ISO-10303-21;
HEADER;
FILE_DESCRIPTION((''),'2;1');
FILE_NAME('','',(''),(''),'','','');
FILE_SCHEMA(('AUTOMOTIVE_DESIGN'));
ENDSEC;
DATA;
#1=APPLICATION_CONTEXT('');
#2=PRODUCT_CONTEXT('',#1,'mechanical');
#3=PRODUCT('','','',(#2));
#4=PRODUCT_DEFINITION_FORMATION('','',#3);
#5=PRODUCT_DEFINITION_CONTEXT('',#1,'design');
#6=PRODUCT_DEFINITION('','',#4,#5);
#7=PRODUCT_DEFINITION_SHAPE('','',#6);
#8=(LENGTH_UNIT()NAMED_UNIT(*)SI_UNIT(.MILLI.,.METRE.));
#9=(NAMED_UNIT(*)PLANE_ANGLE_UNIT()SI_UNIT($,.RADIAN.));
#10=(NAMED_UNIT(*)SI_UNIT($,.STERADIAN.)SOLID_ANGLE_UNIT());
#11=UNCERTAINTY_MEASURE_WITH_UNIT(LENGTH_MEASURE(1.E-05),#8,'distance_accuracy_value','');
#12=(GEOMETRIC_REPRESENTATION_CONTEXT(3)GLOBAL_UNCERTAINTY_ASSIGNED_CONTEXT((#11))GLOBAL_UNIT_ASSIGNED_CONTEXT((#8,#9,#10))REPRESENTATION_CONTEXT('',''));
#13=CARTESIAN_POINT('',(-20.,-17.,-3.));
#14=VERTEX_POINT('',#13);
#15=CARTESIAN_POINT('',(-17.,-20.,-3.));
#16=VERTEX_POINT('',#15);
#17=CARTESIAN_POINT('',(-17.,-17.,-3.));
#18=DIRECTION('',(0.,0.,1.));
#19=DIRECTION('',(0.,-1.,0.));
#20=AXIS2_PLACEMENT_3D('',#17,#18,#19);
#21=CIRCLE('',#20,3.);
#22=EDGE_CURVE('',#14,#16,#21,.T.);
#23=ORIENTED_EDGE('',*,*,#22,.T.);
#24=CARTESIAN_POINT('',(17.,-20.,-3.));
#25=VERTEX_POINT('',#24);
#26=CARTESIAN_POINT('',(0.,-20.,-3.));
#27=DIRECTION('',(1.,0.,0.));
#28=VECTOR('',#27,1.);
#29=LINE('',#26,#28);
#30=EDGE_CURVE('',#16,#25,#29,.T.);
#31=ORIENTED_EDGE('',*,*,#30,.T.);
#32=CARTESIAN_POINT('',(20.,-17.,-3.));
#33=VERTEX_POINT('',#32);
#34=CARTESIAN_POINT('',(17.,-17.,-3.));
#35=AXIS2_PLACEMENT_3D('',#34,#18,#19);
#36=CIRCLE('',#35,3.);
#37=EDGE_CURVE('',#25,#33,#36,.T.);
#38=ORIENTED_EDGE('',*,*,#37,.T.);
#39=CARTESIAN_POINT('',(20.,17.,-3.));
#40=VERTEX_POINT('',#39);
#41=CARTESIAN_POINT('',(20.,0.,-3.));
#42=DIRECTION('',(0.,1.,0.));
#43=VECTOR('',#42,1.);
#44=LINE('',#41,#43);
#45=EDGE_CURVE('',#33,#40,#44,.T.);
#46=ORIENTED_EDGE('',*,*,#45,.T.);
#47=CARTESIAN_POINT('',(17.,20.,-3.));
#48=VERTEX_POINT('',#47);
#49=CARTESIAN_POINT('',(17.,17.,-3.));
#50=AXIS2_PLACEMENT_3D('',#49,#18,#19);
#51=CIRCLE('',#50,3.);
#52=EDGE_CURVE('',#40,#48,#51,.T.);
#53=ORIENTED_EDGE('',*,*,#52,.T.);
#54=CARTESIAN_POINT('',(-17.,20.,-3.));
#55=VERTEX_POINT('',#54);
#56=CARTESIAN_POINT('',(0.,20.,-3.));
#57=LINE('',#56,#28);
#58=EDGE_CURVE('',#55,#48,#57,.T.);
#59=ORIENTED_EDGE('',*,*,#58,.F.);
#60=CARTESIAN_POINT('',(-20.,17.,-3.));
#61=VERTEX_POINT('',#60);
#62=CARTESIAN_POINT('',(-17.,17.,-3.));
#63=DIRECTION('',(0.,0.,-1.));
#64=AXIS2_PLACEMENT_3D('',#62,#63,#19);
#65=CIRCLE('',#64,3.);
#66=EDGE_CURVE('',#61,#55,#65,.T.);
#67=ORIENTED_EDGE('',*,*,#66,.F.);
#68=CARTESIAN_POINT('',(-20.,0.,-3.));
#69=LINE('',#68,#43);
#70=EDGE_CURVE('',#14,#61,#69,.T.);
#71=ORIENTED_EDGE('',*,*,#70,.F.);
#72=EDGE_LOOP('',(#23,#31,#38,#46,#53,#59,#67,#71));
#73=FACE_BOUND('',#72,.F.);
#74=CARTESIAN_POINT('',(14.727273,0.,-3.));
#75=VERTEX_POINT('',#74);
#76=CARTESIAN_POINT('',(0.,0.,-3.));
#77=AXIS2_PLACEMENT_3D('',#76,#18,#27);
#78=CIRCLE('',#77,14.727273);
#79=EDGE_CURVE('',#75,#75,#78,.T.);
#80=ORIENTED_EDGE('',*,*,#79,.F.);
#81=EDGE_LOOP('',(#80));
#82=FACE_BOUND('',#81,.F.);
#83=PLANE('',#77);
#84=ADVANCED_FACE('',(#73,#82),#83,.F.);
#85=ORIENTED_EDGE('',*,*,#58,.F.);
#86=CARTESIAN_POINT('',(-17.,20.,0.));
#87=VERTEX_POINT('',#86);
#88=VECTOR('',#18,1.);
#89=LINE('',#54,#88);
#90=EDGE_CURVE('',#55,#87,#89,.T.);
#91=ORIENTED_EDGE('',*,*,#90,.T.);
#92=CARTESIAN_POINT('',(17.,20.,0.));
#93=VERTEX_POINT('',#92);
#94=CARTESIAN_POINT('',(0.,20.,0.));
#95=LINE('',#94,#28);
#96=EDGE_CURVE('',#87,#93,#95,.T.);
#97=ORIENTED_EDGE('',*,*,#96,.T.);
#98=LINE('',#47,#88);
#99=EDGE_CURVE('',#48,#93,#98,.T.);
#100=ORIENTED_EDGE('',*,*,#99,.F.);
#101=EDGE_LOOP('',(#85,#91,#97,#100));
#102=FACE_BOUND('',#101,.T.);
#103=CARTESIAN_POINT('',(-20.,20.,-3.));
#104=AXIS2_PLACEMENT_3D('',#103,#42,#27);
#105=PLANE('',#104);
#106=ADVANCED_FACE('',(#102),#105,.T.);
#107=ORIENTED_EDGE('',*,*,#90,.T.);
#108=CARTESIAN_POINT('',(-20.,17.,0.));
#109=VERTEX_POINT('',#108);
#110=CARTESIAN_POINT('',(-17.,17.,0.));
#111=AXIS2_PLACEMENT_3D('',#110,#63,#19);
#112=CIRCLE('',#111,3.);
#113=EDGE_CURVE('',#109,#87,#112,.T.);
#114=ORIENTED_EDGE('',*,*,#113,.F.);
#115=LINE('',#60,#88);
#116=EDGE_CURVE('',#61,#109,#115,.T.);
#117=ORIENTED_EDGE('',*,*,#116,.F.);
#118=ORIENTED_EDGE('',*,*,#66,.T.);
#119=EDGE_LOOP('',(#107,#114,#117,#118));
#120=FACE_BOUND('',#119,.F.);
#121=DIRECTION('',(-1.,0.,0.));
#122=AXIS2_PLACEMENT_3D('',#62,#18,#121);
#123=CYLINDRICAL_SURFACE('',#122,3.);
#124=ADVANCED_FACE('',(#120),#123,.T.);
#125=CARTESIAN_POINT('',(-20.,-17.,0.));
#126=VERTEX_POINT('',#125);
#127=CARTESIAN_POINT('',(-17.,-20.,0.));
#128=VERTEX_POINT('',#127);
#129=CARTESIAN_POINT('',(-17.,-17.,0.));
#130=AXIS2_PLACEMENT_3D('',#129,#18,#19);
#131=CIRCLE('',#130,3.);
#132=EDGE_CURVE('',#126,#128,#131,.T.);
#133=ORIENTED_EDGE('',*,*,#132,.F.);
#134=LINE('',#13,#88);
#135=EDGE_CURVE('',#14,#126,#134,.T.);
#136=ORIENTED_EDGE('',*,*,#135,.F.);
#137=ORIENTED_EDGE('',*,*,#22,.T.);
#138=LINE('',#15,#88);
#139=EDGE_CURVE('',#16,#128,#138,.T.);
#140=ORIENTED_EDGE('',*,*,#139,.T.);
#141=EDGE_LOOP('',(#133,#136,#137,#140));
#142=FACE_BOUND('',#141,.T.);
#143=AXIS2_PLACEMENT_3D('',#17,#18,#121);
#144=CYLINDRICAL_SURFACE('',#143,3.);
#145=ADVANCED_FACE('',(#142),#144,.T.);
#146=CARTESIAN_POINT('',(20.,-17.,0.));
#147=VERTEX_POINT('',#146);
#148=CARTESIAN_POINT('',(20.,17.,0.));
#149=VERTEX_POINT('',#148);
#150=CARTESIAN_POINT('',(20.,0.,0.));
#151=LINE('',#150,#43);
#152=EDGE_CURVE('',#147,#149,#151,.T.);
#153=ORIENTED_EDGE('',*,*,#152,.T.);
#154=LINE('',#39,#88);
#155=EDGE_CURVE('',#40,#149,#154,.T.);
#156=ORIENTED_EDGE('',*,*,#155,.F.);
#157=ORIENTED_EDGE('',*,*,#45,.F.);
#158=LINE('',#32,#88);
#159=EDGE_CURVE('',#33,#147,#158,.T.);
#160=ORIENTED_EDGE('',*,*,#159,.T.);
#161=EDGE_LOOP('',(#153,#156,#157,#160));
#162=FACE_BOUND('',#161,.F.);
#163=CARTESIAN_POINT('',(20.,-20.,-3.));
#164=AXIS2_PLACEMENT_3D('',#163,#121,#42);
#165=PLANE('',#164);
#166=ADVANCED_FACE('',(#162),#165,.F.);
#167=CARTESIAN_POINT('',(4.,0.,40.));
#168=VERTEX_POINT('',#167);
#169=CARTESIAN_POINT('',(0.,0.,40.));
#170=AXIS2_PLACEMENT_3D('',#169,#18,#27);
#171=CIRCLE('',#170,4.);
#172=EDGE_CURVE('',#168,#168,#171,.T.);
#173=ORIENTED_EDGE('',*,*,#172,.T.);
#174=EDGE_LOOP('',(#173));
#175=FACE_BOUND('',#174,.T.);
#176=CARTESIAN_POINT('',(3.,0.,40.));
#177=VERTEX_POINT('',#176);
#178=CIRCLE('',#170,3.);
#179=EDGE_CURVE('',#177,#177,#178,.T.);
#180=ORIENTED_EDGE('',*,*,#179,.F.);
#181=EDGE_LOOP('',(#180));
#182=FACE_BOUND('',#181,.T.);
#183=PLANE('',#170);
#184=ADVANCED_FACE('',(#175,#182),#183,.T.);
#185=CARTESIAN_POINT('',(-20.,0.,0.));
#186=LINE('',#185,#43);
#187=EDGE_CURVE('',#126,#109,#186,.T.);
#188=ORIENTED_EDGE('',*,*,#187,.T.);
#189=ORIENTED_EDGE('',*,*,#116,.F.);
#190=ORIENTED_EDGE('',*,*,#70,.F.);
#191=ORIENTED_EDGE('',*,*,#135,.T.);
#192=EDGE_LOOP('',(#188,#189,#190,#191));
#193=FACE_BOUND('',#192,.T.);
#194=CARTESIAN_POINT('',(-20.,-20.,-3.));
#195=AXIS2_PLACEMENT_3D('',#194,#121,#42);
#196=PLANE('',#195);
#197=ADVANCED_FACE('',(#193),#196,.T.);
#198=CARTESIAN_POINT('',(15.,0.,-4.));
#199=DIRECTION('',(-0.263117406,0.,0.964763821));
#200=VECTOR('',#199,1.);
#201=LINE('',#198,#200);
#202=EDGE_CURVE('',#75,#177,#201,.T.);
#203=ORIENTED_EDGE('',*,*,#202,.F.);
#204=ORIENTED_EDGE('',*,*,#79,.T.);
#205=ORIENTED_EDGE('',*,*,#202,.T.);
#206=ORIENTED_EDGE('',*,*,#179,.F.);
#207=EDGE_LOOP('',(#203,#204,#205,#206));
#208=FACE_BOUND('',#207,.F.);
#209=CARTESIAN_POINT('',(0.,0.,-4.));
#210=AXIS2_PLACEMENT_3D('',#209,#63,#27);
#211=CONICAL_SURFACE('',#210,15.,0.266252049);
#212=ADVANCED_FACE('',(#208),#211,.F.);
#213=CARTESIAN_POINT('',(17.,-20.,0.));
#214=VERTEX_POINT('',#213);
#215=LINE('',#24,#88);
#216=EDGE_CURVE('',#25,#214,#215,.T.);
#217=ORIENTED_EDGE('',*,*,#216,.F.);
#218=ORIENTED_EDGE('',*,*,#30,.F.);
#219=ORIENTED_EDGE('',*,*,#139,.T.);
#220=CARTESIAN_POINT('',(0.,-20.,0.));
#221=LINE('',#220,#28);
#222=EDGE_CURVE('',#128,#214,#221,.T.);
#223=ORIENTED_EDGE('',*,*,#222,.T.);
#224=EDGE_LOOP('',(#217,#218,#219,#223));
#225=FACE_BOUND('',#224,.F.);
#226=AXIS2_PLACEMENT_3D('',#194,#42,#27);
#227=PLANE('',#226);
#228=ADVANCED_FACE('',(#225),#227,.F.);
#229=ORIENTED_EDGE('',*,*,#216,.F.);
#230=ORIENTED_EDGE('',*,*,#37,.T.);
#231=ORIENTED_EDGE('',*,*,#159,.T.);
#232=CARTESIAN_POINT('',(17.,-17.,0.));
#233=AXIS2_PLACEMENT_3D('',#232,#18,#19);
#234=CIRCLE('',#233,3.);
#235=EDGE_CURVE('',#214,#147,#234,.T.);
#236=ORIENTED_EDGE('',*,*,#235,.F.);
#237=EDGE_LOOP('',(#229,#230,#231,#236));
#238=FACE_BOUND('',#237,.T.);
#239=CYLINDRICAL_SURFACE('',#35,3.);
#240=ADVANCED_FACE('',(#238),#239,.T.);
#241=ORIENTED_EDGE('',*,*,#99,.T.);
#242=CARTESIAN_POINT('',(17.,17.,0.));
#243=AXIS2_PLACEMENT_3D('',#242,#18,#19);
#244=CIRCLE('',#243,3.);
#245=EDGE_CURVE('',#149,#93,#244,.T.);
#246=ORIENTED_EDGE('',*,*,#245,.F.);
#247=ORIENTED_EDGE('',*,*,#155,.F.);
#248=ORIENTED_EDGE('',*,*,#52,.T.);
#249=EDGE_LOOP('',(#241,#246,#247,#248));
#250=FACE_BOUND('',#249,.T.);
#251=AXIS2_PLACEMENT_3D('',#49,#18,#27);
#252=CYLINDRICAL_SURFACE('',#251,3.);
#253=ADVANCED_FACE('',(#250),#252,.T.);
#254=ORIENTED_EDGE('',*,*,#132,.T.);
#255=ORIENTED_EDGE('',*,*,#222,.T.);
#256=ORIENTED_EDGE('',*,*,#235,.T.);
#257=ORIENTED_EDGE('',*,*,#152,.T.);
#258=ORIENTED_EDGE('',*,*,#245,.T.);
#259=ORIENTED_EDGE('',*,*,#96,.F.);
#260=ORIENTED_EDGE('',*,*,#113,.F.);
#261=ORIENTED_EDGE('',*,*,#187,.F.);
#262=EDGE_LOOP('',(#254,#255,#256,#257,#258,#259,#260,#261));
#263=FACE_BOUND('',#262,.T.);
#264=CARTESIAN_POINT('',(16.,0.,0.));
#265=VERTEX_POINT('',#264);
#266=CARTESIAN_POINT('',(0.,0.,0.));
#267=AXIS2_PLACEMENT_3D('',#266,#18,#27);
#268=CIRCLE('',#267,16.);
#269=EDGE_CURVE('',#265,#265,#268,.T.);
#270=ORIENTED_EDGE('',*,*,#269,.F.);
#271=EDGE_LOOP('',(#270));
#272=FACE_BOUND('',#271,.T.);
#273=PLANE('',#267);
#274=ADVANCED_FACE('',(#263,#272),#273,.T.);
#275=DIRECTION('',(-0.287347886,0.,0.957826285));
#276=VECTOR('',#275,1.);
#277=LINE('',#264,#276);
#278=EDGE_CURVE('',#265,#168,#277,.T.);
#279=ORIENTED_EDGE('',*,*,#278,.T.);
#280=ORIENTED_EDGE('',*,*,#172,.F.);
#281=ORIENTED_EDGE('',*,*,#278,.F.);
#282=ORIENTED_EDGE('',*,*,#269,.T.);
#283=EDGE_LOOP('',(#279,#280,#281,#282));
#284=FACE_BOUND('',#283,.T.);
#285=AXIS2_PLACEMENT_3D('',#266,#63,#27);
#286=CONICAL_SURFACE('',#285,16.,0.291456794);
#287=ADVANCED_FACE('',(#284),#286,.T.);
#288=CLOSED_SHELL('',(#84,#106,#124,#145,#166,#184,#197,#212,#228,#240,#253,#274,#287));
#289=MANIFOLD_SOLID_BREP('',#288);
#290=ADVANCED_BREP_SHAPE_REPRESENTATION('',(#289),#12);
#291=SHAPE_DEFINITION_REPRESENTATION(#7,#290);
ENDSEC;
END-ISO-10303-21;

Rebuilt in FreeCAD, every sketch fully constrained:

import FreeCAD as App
import Part
import Sketcher
from FreeCAD import Vector


def edges_at(feature, points):
    """Names of the edges that pass closest to the given points."""
    edges = feature.Shape.Edges
    near = lambda p: min(range(len(edges)), key=lambda i: edges[i].distToShape(Part.Vertex(*p))[0])
    return sorted({f"Edge{near(p) + 1}" for p in points})


def add_polygon(sketch, points):
    """Adds a closed chain of lines whose ends are joined by coincident constraints."""
    first, n = sketch.GeometryCount, len(points)
    for a, b in zip(points, points[1:] + points[:1]):
        sketch.addGeometry(Part.LineSegment(App.Vector(*a, 0), App.Vector(*b, 0)), False)
    for i in range(n):
        sketch.addConstraint(Sketcher.Constraint("Coincident", first + i, 2, first + (i + 1) % n, 1))

doc = App.newDocument("Part")
body = doc.addObject("PartDesign::Body", "Body")

sketch1 = body.newObject("Sketcher::SketchObject", "Sketch")
sketch1.AttachmentSupport = (doc.getObject("XZ_Plane"), [""])
sketch1.MapMode = "FlatFace"
add_polygon(sketch1, [(0, -4), (15, -4), (3, 40), (0, 40)])
sketch1.addConstraint(Sketcher.Constraint("Horizontal", 0))
sketch1.addConstraint(Sketcher.Constraint("Horizontal", 2))
sketch1.addConstraint(Sketcher.Constraint("Vertical", 3))
sketch1.addConstraint(Sketcher.Constraint("PointOnObject", 2, 2, -2))
sketch1.addConstraint(Sketcher.Constraint("DistanceX", 0, 1, 0, 2, 15.0))
sketch1.addConstraint(Sketcher.Constraint("DistanceX", 2, 2, 2, 1, 3.0))
sketch1.addConstraint(Sketcher.Constraint("DistanceY", 3, 2, 3, 1, 44.0))
sketch1.addConstraint(Sketcher.Constraint("DistanceY", 0, 2, -1, 1, 4.0))
revolution = body.newObject("PartDesign::Revolution", "Revolution")
revolution.Profile = sketch1
revolution.ReferenceAxis = (sketch1, ["V_Axis"])
revolution.Angle = 360
body2 = doc.addObject("PartDesign::Body", "Body001")

sketch2 = body2.newObject("Sketcher::SketchObject", "Sketch001")
sketch2.AttachmentSupport = (doc.getObject("XZ_Plane001"), [""])
sketch2.MapMode = "FlatFace"
add_polygon(sketch2, [(0, 0), (16, 0), (4, 40), (0, 40)])
sketch2.addConstraint(Sketcher.Constraint("Horizontal", 0))
sketch2.addConstraint(Sketcher.Constraint("Horizontal", 2))
sketch2.addConstraint(Sketcher.Constraint("Vertical", 3))
sketch2.addConstraint(Sketcher.Constraint("Coincident", 3, 2, -1, 1))
sketch2.addConstraint(Sketcher.Constraint("DistanceX", 0, 1, 0, 2, 16.0))
sketch2.addConstraint(Sketcher.Constraint("DistanceX", 2, 2, 2, 1, 4.0))
sketch2.addConstraint(Sketcher.Constraint("DistanceY", 3, 2, 3, 1, 40.0))
revolution2 = body2.newObject("PartDesign::Revolution", "Revolution001")
revolution2.Profile = sketch2
revolution2.ReferenceAxis = (sketch2, ["V_Axis"])
revolution2.Angle = 360
body3 = doc.addObject("PartDesign::Body", "Body002")

sketch3 = body3.newObject("Sketcher::SketchObject", "Sketch002")
sketch3.AttachmentSupport = (doc.getObject("XY_Plane002"), [""])
sketch3.MapMode = "FlatFace"
add_polygon(sketch3, [(0, 40), (0, 0), (40, 0), (40, 40)])
sketch3.addConstraint(Sketcher.Constraint("Vertical", 0))
sketch3.addConstraint(Sketcher.Constraint("Horizontal", 1))
sketch3.addConstraint(Sketcher.Constraint("Vertical", 2))
sketch3.addConstraint(Sketcher.Constraint("Horizontal", 3))
sketch3.addConstraint(Sketcher.Constraint("Coincident", 0, 2, -1, 1))
sketch3.addConstraint(Sketcher.Constraint("Equal", 3, 0))
sketch3.addConstraint(Sketcher.Constraint("DistanceX", 1, 1, 1, 2, 40.0))
pad1 = body3.newObject("PartDesign::Pad", "Pad")
pad1.Profile = sketch3
pad1.Length = 3
doc.recompute()

fillet = body3.newObject("PartDesign::Fillet", "Fillet")
fillet.Base = (pad1, edges_at(pad1, [
    (0, 0, 1.5),
    (0, 40, 1.5),
    (40, 0, 1.5),
    (40, 40, 1.5),
]))
fillet.Radius = 3
body4 = doc.addObject("PartDesign::Body", "Body003")
doc.recompute()

body3.Placement = App.Placement(Vector(-20, -20, -3), App.Rotation(Vector(0, 0, 1), 0))
boolean = body4.newObject("PartDesign::Boolean", "Boolean")
boolean.Type = "Fuse"
boolean.addObjects([body3])
doc.recompute()

boolean2 = body4.newObject("PartDesign::Boolean", "Boolean001")
boolean2.Type = "Fuse"
boolean2.addObjects([body2])
doc.recompute()

boolean3 = body4.newObject("PartDesign::Boolean", "Boolean002")
boolean3.Type = "Cut"
boolean3.addObjects([body])

doc.recompute()
